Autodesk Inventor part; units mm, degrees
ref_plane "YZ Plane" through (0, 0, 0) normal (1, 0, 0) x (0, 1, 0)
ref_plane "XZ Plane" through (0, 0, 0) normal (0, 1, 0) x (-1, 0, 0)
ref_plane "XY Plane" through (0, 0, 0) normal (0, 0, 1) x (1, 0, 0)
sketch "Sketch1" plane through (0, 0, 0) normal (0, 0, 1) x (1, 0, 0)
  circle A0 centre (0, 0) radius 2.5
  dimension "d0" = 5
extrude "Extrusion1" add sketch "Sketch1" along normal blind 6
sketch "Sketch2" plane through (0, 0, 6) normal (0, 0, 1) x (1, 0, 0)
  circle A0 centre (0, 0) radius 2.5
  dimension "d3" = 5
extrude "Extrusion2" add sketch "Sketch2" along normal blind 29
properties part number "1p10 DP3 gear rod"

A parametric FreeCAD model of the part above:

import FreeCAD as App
import Part
import Sketcher

V = App.Vector

doc = App.newDocument("Part")
body = doc.addObject("PartDesign::Body", "Body")

# Sketch on XY plane
sketch1 = body.newObject("Sketcher::SketchObject", "Sketch")
sketch1.AttachmentSupport = (doc.getObject("XY_Plane"), [""])
sketch1.MapMode = "FlatFace"
sketch1.addGeometry(Part.Circle(V(0, 0, 0), V(0, 0, 1), 2.5), False)
sketch1.addConstraint([
    Sketcher.Constraint("Coincident", 0, 3, -1, 1),
    Sketcher.Constraint("Diameter", 0, 5.0),
])
pad1 = body.newObject("PartDesign::Pad", "Pad")
pad1.Profile = sketch1
pad1.Length = 6

# Sketch on XY plane
sketch2 = body.newObject("Sketcher::SketchObject", "Sketch001")
sketch2.AttachmentSupport = (doc.getObject("XY_Plane"), [""])
sketch2.MapMode = "FlatFace"
sketch2.AttachmentOffset = App.Placement(V(0, 0, 6), App.Rotation())
sketch2.addGeometry(Part.Circle(V(0, 0, 0), V(0, 0, 1), 2.5), False)
sketch2.addConstraint([
    Sketcher.Constraint("Coincident", 0, 3, -1, 1),
    Sketcher.Constraint("Diameter", 0, 5.0),
])
pad2 = body.newObject("PartDesign::Pad", "Pad001")
pad2.Profile = sketch2
pad2.Length = 29

doc.recompute()
